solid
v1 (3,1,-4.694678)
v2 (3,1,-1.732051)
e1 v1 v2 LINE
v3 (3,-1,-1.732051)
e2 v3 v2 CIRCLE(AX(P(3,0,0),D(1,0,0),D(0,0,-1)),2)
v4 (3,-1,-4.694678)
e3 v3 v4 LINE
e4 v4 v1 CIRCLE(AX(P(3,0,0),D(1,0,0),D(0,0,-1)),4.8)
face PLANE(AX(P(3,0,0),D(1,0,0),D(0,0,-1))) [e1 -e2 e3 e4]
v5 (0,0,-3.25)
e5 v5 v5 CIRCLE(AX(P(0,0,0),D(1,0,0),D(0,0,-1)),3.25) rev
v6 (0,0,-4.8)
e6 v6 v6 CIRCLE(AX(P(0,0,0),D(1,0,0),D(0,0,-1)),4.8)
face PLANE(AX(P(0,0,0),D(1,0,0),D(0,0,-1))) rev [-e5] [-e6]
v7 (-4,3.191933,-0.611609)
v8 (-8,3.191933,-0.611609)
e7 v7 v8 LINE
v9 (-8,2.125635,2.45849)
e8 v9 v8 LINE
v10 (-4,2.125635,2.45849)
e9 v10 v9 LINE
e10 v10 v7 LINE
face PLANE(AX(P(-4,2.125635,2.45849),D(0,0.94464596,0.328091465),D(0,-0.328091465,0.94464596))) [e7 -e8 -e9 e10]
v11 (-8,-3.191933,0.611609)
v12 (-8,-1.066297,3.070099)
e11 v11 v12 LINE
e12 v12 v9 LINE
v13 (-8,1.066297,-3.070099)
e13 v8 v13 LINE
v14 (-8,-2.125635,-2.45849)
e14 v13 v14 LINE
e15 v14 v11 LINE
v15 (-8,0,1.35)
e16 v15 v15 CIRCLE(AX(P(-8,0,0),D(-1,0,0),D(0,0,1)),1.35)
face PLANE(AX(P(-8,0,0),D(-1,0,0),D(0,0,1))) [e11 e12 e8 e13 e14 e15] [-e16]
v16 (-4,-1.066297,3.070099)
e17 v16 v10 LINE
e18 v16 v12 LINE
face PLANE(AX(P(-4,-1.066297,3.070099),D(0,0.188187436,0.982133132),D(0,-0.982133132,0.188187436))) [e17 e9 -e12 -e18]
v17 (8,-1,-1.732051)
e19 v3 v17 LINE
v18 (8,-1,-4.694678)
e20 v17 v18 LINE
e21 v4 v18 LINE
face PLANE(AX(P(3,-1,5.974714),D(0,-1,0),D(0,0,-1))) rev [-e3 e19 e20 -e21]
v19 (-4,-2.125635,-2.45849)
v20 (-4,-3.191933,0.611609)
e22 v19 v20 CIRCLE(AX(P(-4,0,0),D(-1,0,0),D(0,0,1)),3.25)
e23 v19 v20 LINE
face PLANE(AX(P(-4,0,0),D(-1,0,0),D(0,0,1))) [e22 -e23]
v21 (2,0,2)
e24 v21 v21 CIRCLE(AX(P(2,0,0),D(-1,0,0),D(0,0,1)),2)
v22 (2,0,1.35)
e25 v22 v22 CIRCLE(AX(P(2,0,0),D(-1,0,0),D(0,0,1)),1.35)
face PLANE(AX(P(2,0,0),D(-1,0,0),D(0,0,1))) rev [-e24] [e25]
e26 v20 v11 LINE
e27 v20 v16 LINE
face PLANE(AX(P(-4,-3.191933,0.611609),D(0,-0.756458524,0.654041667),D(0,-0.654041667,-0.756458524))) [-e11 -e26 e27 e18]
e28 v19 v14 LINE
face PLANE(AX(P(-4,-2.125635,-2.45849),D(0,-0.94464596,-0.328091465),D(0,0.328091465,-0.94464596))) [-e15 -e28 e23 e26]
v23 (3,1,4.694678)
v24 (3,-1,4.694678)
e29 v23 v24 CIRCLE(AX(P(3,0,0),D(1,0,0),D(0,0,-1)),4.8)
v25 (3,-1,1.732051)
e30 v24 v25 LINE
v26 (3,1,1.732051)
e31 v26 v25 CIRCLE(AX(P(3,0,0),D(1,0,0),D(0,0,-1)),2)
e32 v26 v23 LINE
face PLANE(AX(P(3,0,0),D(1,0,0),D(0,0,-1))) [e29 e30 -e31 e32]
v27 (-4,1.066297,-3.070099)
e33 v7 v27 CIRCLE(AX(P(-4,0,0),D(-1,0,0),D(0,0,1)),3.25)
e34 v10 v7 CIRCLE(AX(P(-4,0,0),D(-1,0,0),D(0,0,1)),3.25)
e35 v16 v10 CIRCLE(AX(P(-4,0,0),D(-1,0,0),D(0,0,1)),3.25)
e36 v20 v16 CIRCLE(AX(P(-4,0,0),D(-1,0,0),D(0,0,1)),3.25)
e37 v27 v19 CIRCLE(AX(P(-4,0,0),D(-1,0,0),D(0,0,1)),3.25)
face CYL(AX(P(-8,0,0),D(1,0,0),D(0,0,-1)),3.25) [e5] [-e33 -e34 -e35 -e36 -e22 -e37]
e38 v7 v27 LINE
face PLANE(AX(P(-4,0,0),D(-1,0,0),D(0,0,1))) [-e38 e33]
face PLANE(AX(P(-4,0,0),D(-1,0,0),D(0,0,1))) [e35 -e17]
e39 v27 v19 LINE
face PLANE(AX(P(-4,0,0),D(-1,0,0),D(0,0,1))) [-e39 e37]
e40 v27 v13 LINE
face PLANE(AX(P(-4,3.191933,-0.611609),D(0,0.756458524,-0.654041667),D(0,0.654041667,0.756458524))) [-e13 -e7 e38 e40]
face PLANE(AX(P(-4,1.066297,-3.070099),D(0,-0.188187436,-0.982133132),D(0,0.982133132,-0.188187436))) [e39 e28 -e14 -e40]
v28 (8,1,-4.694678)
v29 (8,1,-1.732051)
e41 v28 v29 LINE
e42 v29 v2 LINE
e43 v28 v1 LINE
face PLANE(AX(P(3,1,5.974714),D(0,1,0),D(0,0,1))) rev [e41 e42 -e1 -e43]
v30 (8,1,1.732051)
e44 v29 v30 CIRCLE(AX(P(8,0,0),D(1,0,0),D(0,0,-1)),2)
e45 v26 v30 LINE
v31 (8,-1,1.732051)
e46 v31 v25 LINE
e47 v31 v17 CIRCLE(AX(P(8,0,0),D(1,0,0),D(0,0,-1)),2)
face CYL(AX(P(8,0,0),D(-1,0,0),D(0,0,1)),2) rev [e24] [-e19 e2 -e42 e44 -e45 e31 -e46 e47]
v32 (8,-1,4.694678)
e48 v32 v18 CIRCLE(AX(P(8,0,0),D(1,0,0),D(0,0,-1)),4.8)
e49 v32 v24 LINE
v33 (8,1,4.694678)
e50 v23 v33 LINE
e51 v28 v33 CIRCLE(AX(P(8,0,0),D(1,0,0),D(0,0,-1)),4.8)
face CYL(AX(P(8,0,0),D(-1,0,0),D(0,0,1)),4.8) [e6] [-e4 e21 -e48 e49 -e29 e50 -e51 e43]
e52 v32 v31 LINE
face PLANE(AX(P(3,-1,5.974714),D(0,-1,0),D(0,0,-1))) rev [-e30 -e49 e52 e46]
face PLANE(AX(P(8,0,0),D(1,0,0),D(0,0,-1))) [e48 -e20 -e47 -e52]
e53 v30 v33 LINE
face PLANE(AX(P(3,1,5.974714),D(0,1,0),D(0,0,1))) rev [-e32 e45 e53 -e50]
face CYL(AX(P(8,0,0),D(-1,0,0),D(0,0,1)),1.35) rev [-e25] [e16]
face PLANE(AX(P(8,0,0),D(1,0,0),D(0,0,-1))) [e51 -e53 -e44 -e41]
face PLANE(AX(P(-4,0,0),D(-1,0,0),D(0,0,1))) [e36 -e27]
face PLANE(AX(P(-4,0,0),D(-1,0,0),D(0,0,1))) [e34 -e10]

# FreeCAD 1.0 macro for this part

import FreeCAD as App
import Part
import Sketcher

doc = App.newDocument("Part")
body = doc.addObject("PartDesign::Body", "Body")

# Sketch on YZ plane
sketch1 = body.newObject("Sketcher::SketchObject", "Sketch")
sketch1.AttachmentSupport = (doc.getObject("YZ_Plane"), [""])
sketch1.MapMode = "FlatFace"
sketch1.addGeometry([
    Part.Circle(App.Vector(0, 0, 0), App.Vector(0, 0, 1), 4.8),
    Part.Circle(App.Vector(0, 0, 0), App.Vector(0, 0, 1), 2),
], False)
sketch1.addConstraint([
    Sketcher.Constraint("Coincident", 0, 3, -1, 1),
    Sketcher.Constraint("Coincident", 1, 3, -1, 1),
    Sketcher.Constraint("Diameter", 1, 4.0),
    Sketcher.Constraint("Diameter", 0, 9.6),
])
pad1 = body.newObject("PartDesign::Pad", "Pad")
pad1.Profile = sketch1
pad1.Length = 8

# Sketch on YZ plane
sketch2 = body.newObject("Sketcher::SketchObject", "Sketch001")
sketch2.AttachmentSupport = (doc.getObject("YZ_Plane"), [""])
sketch2.MapMode = "FlatFace"
sketch2.AttachmentOffset = App.Placement(App.Vector(0, 0, 8), App.Rotation())
sketch2.addGeometry([
    Part.LineSegment(App.Vector(1, 6, 0), App.Vector(-1, 6, 0)),
    Part.LineSegment(App.Vector(-1, 6, 0), App.Vector(-1, -6, 0)),
    Part.LineSegment(App.Vector(-1, -6, 0), App.Vector(1, -6, 0)),
    Part.LineSegment(App.Vector(1, -6, 0), App.Vector(1, 6, 0)),
], False)
sketch2.addConstraint([
    Sketcher.Constraint("Coincident", 0, 2, 1, 1),
    Sketcher.Constraint("Coincident", 1, 2, 2, 1),
    Sketcher.Constraint("Coincident", 2, 2, 3, 1),
    Sketcher.Constraint("Coincident", 3, 2, 0, 1),
    Sketcher.Constraint("Horizontal", 0),
    Sketcher.Constraint("Vertical", 1),
    Sketcher.Constraint("Horizontal", 2),
    Sketcher.Constraint("Vertical", 3),
    Sketcher.Constraint("DistanceX", 0, 2, 0, 1, 2.0),
    Sketcher.Constraint("DistanceY", 1, 2, 1, 1, 12.0),
    Sketcher.Constraint("DistanceX", 0, 2, -1, 1, 1.0),
    Sketcher.Constraint("DistanceY", -1, 1, 0, 2, 5.974714),
])
pocket1 = body.newObject("PartDesign::Pocket", "Pocket")
pocket1.Profile = sketch2
pocket1.Length = 5

# Sketch on YZ plane
sketch3 = body.newObject("Sketcher::SketchObject", "Sketch002")
sketch3.AttachmentSupport = (doc.getObject("YZ_Plane"), [""])
sketch3.MapMode = "FlatFace"
sketch3.addGeometry(Part.Circle(App.Vector(0, 0, 0), App.Vector(0, 0, 1), 2), False)
sketch3.addConstraint([
    Sketcher.Constraint("Coincident", 0, 3, -1, 1),
    Sketcher.Constraint("Diameter", 0, 4.0),
])
pad2 = body.newObject("PartDesign::Pad", "Pad001")
pad2.Profile = sketch3
pad2.Length = 2

# Sketch on YZ plane
sketch4 = body.newObject("Sketcher::SketchObject", "Sketch003")
sketch4.AttachmentSupport = (doc.getObject("YZ_Plane"), [""])
sketch4.MapMode = "FlatFace"
sketch4.addGeometry(Part.Circle(App.Vector(0, 0, 0), App.Vector(0, 0, 1), 3.2), False)
sketch4.addConstraint([
    Sketcher.Constraint("Coincident", 0, 3, -1, 1),
    Sketcher.Constraint("Diameter", 0, 6.5),
])
pad3 = body.newObject("PartDesign::Pad", "Pad002")
pad3.Profile = sketch4
pad3.Length = 8
pad3.Reversed = True

# Sketch on YZ plane
sketch5 = body.newObject("Sketcher::SketchObject", "Sketch004")
sketch5.AttachmentSupport = (doc.getObject("YZ_Plane"), [""])
sketch5.MapMode = "FlatFace"
sketch5.AttachmentOffset = App.Placement(App.Vector(0, 0, -8), App.Rotation())
sketch5.addGeometry(Part.Circle(App.Vector(0, 0, 0), App.Vector(0, 0, 1), 1.4), False)
sketch5.addConstraint([
    Sketcher.Constraint("Coincident", 0, 3, -1, 1),
    Sketcher.Constraint("Diameter", 0, 2.7),
])
pocket2 = body.newObject("PartDesign::Pocket", "Pocket001")
pocket2.Profile = sketch5
pocket2.Type = "ThroughAll"
pocket2.Reversed = True

# Sketch on YZ plane
sketch6 = body.newObject("Sketcher::SketchObject", "Sketch005")
sketch6.AttachmentSupport = (doc.getObject("YZ_Plane"), [""])
sketch6.MapMode = "FlatFace"
sketch6.AttachmentOffset = App.Placement(App.Vector(0, 0, -8), App.Rotation())
sketch6.addGeometry([
    Part.LineSegment(App.Vector(7.9, -7.9, 0), App.Vector(-7.9, -7.9, 0)),  # 0
    Part.LineSegment(App.Vector(-7.9, -7.9, 0), App.Vector(-7.9, 7.9, 0)),  # 1
    Part.LineSegment(App.Vector(-7.9, 7.9, 0), App.Vector(7.9, 7.9, 0)),  # 2
    Part.LineSegment(App.Vector(7.9, 7.9, 0), App.Vector(7.9, -7.9, 0)),  # 3
    Part.LineSegment(App.Vector(-2.1, -2.5, 0), App.Vector(1.1, -3.1, 0)),  # 4
    Part.LineSegment(App.Vector(1.1, -3.1, 0), App.Vector(3.2, -0.6, 0)),  # 5
    Part.LineSegment(App.Vector(3.2, -0.6, 0), App.Vector(2.1, 2.5, 0)),  # 6
    Part.LineSegment(App.Vector(2.1, 2.5, 0), App.Vector(-1.1, 3.1, 0)),  # 7
    Part.LineSegment(App.Vector(-1.1, 3.1, 0), App.Vector(-3.2, 0.6, 0)),  # 8
    Part.LineSegment(App.Vector(-3.2, 0.6, 0), App.Vector(-2.1, -2.5, 0)),  # 9
], False)
sketch6.addConstraint([
    Sketcher.Constraint("Coincident", 0, 2, 1, 1),
    Sketcher.Constraint("Coincident", 1, 2, 2, 1),
    Sketcher.Constraint("Coincident", 2, 2, 3, 1),
    Sketcher.Constraint("Coincident", 3, 2, 0, 1),
    Sketcher.Constraint("Coincident", 4, 2, 5, 1),
    Sketcher.Constraint("Coincident", 5, 2, 6, 1),
    Sketcher.Constraint("Coincident", 6, 2, 7, 1),
    Sketcher.Constraint("Coincident", 7, 2, 8, 1),
    Sketcher.Constraint("Coincident", 8, 2, 9, 1),
    Sketcher.Constraint("Coincident", 9, 2, 4, 1),
    Sketcher.Constraint("Horizontal", 0),
    Sketcher.Constraint("Vertical", 1),
    Sketcher.Constraint("Horizontal", 2),
    Sketcher.Constraint("Vertical", 3),
    Sketcher.Constraint("Symmetric", 0, 2, 2, 2, -1, 1),
    Sketcher.Constraint("Symmetric", 4, 2, 7, 2, -1, 1),
    Sketcher.Constraint("Symmetric", 5, 2, 8, 2, -1, 1),
    Sketcher.Constraint("Symmetric", 6, 2, 9, 2, -1, 1),
    Sketcher.Constraint("Equal", 2, 1),
    Sketcher.Constraint("Equal", 4, 5),
    Sketcher.Constraint("Equal", 5, 6),
    Sketcher.Constraint("Distance", 4, 3.25),
    Sketcher.Constraint("DistanceX", 0, 2, 0, 1, 15.796),
    Sketcher.Constraint("DistanceY", 4, 2, -1, 1, 3.070099),
    Sketcher.Constraint("DistanceY", 5, 2, 6, 2, 3.070099),
    Sketcher.Constraint("DistanceY", 5, 2, -1, 1, 0.611609),
])
pocket3 = body.newObject("PartDesign::Pocket", "Pocket002")
pocket3.Profile = sketch6
pocket3.Length = 4
pocket3.Reversed = True

doc.recompute()
